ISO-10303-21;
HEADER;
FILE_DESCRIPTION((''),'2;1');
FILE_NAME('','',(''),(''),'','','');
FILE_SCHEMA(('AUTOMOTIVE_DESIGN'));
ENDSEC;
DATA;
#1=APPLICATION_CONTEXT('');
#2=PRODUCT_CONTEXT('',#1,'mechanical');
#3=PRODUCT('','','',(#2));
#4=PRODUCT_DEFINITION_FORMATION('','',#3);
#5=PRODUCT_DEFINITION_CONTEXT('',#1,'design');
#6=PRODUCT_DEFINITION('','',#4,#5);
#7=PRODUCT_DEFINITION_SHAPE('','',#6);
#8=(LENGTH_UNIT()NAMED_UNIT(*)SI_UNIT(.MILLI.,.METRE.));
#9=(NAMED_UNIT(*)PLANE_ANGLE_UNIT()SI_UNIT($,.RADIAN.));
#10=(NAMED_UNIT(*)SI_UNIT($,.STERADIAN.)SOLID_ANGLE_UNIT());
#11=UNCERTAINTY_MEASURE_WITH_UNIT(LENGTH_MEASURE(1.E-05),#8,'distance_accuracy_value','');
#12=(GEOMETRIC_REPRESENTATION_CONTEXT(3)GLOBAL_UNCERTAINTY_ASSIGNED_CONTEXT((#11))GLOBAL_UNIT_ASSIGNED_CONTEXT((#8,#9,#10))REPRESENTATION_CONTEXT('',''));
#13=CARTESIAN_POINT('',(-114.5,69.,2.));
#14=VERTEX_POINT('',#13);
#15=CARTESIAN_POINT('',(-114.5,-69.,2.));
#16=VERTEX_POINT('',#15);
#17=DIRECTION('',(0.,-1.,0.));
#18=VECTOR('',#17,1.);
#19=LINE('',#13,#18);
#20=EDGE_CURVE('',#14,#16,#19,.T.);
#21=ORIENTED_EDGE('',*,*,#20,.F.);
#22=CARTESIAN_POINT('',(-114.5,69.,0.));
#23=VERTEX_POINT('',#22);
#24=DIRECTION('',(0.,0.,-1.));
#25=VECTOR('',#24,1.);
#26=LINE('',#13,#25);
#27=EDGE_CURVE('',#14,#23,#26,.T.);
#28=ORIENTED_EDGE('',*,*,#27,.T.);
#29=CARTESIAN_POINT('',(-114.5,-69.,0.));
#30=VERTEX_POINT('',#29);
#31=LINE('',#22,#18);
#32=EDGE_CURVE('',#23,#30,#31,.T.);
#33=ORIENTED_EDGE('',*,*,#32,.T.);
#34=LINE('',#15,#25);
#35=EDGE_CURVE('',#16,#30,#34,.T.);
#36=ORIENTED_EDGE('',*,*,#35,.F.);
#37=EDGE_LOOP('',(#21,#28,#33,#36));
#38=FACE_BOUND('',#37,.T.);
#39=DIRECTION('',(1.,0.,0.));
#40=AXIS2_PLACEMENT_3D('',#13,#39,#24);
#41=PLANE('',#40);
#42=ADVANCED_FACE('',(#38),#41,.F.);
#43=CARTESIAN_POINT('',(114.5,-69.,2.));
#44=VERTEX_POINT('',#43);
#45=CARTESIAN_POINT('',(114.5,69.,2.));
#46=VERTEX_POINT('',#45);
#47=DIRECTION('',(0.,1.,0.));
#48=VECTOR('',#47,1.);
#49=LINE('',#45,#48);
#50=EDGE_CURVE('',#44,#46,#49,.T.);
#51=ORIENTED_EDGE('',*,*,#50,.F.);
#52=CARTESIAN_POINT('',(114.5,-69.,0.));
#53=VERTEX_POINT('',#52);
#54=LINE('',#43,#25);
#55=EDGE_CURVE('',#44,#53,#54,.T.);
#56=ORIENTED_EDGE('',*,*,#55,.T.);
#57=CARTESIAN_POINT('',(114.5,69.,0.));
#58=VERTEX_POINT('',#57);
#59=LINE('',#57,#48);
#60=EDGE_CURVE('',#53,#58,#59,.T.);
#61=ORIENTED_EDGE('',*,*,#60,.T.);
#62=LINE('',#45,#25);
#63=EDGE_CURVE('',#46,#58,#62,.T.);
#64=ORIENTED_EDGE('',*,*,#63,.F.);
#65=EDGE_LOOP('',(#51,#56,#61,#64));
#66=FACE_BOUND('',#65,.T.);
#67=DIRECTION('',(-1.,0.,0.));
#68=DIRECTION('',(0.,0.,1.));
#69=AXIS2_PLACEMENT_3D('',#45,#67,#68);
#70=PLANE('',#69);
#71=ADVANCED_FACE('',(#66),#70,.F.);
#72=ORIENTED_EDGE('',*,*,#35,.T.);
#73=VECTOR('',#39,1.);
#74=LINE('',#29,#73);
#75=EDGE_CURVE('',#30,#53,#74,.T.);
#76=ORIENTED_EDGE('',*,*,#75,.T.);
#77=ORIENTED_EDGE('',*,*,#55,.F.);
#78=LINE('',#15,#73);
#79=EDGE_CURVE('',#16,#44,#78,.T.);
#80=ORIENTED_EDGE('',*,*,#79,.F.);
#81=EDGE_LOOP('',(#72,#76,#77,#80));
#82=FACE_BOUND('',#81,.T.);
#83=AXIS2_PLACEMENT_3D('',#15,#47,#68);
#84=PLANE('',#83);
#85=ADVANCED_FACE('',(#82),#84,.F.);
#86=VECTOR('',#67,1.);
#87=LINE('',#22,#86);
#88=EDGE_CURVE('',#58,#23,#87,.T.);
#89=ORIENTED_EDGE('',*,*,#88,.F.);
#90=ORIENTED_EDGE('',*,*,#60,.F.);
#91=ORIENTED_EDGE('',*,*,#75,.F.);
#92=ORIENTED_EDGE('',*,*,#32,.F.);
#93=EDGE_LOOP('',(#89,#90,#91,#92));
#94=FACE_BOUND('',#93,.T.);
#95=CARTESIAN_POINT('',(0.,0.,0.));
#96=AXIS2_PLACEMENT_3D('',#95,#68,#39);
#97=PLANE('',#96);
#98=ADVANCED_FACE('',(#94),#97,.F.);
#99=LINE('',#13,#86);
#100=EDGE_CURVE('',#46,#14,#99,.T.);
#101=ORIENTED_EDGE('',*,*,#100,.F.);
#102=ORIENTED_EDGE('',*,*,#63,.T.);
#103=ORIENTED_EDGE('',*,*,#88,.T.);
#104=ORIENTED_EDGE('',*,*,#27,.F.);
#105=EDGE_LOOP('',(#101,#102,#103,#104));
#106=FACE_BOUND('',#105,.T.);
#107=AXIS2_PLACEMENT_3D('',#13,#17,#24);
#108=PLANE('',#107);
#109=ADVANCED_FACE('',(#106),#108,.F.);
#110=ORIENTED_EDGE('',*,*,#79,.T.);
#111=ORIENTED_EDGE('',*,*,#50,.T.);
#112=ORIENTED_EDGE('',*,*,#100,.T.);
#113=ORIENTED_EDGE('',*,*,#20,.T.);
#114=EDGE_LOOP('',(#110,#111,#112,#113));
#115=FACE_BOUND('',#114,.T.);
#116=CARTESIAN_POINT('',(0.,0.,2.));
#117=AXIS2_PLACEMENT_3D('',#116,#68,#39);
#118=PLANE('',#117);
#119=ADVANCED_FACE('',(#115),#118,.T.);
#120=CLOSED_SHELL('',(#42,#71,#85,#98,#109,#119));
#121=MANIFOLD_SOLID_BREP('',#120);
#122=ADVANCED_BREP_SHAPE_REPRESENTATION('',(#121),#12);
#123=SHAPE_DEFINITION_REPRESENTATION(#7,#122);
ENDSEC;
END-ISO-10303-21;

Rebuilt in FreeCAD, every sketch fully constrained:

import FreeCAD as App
import Part
import Sketcher

V = App.Vector

doc = App.newDocument("Part")
body = doc.addObject("PartDesign::Body", "Body")

sketch1 = doc.addObject("Sketcher::SketchObject", "Sketch")
body.addObject(sketch1)
sketch1.AttachmentSupport = (doc.XY_Plane, [""])
sketch1.MapMode = "FlatFace"
sketch1.addGeometry([
    Part.LineSegment(V(-114, 69, 0), V(-114, -69, 0)),
    Part.LineSegment(V(-114, -69, 0), V(114, -69, 0)),
    Part.LineSegment(V(114, -69, 0), V(114, 69, 0)),
    Part.LineSegment(V(114, 69, 0), V(-114, 69, 0)),
], False)
sketch1.addConstraint([
    Sketcher.Constraint("Coincident", 0, 2, 1, 1),
    Sketcher.Constraint("Coincident", 1, 2, 2, 1),
    Sketcher.Constraint("Coincident", 2, 2, 3, 1),
    Sketcher.Constraint("Coincident", 3, 2, 0, 1),
    Sketcher.Constraint("Vertical", 0),
    Sketcher.Constraint("Horizontal", 1),
    Sketcher.Constraint("Vertical", 2),
    Sketcher.Constraint("Horizontal", 3),
    Sketcher.Constraint("Symmetric", 0, 2, 2, 2, -1, 1),
    Sketcher.Constraint("DistanceX", 1, 1, 1, 2, 229.0),
    Sketcher.Constraint("DistanceY", 0, 2, 0, 1, 138.0),
])
pad1 = doc.addObject("PartDesign::Pad", "Pad")
body.addObject(pad1)
pad1.Profile = sketch1
pad1.Length = 2

doc.recompute()
